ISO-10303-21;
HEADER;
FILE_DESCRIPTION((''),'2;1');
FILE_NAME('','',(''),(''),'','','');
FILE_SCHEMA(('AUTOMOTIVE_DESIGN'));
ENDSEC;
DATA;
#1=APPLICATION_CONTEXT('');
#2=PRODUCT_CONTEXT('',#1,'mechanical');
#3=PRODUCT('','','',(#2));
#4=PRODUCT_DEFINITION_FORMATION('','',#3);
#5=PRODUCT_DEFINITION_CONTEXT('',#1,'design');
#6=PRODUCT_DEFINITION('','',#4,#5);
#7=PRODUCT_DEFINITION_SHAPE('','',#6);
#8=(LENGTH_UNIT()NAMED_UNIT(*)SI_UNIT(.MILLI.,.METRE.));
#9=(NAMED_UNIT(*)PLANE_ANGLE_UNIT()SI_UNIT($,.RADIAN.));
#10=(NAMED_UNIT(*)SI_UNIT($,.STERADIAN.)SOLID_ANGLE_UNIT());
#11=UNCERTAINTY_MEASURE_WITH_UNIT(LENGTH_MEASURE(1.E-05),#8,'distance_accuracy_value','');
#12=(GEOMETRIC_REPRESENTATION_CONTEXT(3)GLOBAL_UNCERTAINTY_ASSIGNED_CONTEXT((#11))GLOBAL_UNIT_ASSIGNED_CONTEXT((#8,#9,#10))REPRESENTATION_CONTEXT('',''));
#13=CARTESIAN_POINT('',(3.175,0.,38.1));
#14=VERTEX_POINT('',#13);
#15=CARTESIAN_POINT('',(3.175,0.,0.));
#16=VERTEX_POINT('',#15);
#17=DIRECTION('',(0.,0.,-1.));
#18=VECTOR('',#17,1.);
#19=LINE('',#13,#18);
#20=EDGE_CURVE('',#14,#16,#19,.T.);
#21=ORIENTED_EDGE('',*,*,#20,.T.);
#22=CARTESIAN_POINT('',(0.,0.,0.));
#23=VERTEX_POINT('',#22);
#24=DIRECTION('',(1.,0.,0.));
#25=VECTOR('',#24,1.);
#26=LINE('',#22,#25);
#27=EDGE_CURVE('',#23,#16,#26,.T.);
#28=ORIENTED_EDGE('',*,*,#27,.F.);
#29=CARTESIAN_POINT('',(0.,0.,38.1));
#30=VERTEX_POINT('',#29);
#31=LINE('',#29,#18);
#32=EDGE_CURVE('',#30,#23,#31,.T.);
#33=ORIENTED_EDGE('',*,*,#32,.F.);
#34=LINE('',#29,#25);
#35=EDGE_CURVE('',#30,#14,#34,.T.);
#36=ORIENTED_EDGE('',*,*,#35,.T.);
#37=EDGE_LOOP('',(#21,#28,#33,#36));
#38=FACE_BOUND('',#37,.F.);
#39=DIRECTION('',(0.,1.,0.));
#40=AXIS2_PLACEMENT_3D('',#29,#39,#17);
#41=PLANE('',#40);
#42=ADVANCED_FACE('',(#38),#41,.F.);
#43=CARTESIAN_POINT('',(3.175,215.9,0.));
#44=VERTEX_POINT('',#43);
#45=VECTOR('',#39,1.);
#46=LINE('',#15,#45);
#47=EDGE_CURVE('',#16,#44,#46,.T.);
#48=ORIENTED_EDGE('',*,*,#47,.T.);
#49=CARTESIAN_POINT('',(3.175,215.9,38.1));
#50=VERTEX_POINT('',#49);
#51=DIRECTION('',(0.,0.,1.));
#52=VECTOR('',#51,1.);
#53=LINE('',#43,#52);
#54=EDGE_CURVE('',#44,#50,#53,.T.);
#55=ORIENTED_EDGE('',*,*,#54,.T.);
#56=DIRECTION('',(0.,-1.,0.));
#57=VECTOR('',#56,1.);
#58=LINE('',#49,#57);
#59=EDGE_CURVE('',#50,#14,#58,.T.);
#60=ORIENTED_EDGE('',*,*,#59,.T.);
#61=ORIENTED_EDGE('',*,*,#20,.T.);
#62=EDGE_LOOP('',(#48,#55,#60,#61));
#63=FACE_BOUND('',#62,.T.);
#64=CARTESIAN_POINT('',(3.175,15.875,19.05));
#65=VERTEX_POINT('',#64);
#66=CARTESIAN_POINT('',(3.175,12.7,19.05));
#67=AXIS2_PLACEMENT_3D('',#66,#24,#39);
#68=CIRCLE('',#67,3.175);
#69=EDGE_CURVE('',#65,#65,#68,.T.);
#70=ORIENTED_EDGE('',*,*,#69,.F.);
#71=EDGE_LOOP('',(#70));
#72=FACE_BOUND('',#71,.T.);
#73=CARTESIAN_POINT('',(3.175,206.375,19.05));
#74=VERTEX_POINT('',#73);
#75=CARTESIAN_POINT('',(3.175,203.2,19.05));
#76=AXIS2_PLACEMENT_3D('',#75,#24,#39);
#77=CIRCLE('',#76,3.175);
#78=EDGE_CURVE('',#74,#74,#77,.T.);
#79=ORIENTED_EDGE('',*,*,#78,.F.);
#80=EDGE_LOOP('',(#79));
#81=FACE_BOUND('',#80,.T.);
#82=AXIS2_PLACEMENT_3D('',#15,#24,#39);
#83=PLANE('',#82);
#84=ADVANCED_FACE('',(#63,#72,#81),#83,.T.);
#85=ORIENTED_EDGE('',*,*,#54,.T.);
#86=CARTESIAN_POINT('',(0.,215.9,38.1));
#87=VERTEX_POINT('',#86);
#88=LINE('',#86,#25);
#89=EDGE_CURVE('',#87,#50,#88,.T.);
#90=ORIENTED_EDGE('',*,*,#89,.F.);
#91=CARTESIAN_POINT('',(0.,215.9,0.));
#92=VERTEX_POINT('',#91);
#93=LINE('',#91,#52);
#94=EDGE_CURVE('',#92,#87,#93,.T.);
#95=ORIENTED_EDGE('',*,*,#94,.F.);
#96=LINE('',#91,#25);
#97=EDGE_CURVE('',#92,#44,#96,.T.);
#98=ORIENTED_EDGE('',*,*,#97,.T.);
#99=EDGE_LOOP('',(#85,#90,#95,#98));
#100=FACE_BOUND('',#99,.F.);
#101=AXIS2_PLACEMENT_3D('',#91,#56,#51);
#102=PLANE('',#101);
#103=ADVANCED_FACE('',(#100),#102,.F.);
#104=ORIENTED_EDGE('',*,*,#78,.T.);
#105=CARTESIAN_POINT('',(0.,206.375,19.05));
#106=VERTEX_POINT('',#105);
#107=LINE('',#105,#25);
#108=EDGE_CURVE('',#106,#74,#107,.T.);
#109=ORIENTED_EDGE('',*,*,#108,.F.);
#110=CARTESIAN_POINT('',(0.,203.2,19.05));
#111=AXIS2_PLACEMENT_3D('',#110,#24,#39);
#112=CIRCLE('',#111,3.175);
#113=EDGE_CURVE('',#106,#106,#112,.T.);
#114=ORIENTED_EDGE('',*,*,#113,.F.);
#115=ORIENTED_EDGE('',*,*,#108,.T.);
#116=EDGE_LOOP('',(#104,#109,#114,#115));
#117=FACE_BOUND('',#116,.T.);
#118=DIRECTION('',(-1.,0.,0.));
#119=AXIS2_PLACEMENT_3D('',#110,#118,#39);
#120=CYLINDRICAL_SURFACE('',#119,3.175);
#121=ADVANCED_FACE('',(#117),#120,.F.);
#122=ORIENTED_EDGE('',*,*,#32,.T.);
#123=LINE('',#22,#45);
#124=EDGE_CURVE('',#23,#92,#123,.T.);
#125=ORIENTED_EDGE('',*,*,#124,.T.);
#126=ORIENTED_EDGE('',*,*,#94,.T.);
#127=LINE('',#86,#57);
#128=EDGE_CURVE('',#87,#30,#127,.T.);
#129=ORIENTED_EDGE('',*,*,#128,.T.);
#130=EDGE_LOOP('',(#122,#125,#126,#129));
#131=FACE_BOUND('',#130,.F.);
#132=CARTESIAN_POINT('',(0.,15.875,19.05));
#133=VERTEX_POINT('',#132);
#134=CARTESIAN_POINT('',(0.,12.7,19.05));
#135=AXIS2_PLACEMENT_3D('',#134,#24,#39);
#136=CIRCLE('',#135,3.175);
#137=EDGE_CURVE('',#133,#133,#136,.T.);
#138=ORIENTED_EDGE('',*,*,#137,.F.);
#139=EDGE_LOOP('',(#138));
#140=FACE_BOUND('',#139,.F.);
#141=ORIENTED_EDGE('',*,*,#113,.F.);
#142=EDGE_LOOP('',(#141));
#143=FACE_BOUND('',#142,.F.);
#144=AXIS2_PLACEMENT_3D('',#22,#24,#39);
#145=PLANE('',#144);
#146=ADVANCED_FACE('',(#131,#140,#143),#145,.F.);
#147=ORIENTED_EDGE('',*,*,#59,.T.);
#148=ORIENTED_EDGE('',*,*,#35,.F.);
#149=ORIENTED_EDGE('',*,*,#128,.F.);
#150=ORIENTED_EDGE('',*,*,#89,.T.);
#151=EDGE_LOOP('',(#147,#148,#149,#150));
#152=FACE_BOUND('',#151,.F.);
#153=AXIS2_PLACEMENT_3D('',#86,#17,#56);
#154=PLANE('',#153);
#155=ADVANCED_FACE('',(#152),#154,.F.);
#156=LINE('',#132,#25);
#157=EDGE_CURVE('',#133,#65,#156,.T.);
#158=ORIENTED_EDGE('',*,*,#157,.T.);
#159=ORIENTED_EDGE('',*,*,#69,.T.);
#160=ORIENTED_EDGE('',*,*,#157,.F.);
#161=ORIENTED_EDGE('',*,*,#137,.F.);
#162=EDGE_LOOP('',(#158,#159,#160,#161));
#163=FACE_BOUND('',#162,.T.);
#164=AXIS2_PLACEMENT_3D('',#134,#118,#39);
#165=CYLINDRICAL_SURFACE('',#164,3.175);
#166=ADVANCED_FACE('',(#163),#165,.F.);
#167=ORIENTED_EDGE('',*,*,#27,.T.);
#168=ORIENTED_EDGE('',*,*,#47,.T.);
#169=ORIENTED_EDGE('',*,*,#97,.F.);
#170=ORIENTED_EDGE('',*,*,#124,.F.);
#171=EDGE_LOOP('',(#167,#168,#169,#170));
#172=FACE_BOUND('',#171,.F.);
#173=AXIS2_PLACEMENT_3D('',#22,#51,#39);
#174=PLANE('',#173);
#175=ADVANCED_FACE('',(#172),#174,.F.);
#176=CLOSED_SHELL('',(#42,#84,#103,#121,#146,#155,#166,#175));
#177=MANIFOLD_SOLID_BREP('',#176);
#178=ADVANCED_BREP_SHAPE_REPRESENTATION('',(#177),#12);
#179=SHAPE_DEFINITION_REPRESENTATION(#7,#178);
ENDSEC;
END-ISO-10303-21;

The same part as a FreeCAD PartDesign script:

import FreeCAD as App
import Part
import Sketcher
Q = App.Units.Quantity

doc = App.newDocument("Part")
body = doc.addObject("PartDesign::Body", "Body")

sketch1 = body.newObject("Sketcher::SketchObject", "Sketch")
sketch1.AttachmentSupport = (doc.getObject("YZ_Plane"), [""])
sketch1.MapMode = "FlatFace"
sketch1.addGeometry([
    Part.LineSegment(App.Vector(0, 38.1, 0), App.Vector(0, 0, 0)),
    Part.LineSegment(App.Vector(0, 0, 0), App.Vector(215.9, 0, 0)),
    Part.LineSegment(App.Vector(215.9, 0, 0), App.Vector(215.9, 38.1, 0)),
    Part.LineSegment(App.Vector(215.9, 38.1, 0), App.Vector(0, 38.1, 0)),
    Part.Circle(App.Vector(12.7, 19.1, 0), App.Vector(0, 0, 1), 3.2),
    Part.Circle(App.Vector(203.2, 19.1, 0), App.Vector(0, 0, 1), 3.2),
], False)
sketch1.addConstraint([
    Sketcher.Constraint("Coincident", 0, 2, 1, 1),
    Sketcher.Constraint("Coincident", 1, 2, 2, 1),
    Sketcher.Constraint("Coincident", 2, 2, 3, 1),
    Sketcher.Constraint("Coincident", 3, 2, 0, 1),
    Sketcher.Constraint("Vertical", 0),
    Sketcher.Constraint("Horizontal", 1),
    Sketcher.Constraint("Vertical", 2),
    Sketcher.Constraint("Horizontal", 3),
    Sketcher.Constraint("Coincident", 0, 2, -1, 1),
    Sketcher.Constraint("Equal", 4, 5),
    Sketcher.Constraint("Horizontal", 4, 3, 5, 3),
    Sketcher.Constraint("Diameter", 4, Q("0.25 in")),
    Sketcher.Constraint("DistanceY", 0, 2, 0, 1, Q("1.5 in")),
    Sketcher.Constraint("DistanceX", -1, 1, 4, 3, Q("0.5 in")),
    Sketcher.Constraint("DistanceX", 4, 3, 5, 3, Q("7.5 in")),
    Sketcher.Constraint("DistanceX", 5, 3, 1, 2, Q("0.5 in")),
    Sketcher.Constraint("DistanceY", -1, 1, 4, 3, Q("0.75 in")),
])
pad1 = body.newObject("PartDesign::Pad", "Pad")
pad1.Profile = sketch1
pad1.Length = Q("0.125 in")

doc.recompute()
